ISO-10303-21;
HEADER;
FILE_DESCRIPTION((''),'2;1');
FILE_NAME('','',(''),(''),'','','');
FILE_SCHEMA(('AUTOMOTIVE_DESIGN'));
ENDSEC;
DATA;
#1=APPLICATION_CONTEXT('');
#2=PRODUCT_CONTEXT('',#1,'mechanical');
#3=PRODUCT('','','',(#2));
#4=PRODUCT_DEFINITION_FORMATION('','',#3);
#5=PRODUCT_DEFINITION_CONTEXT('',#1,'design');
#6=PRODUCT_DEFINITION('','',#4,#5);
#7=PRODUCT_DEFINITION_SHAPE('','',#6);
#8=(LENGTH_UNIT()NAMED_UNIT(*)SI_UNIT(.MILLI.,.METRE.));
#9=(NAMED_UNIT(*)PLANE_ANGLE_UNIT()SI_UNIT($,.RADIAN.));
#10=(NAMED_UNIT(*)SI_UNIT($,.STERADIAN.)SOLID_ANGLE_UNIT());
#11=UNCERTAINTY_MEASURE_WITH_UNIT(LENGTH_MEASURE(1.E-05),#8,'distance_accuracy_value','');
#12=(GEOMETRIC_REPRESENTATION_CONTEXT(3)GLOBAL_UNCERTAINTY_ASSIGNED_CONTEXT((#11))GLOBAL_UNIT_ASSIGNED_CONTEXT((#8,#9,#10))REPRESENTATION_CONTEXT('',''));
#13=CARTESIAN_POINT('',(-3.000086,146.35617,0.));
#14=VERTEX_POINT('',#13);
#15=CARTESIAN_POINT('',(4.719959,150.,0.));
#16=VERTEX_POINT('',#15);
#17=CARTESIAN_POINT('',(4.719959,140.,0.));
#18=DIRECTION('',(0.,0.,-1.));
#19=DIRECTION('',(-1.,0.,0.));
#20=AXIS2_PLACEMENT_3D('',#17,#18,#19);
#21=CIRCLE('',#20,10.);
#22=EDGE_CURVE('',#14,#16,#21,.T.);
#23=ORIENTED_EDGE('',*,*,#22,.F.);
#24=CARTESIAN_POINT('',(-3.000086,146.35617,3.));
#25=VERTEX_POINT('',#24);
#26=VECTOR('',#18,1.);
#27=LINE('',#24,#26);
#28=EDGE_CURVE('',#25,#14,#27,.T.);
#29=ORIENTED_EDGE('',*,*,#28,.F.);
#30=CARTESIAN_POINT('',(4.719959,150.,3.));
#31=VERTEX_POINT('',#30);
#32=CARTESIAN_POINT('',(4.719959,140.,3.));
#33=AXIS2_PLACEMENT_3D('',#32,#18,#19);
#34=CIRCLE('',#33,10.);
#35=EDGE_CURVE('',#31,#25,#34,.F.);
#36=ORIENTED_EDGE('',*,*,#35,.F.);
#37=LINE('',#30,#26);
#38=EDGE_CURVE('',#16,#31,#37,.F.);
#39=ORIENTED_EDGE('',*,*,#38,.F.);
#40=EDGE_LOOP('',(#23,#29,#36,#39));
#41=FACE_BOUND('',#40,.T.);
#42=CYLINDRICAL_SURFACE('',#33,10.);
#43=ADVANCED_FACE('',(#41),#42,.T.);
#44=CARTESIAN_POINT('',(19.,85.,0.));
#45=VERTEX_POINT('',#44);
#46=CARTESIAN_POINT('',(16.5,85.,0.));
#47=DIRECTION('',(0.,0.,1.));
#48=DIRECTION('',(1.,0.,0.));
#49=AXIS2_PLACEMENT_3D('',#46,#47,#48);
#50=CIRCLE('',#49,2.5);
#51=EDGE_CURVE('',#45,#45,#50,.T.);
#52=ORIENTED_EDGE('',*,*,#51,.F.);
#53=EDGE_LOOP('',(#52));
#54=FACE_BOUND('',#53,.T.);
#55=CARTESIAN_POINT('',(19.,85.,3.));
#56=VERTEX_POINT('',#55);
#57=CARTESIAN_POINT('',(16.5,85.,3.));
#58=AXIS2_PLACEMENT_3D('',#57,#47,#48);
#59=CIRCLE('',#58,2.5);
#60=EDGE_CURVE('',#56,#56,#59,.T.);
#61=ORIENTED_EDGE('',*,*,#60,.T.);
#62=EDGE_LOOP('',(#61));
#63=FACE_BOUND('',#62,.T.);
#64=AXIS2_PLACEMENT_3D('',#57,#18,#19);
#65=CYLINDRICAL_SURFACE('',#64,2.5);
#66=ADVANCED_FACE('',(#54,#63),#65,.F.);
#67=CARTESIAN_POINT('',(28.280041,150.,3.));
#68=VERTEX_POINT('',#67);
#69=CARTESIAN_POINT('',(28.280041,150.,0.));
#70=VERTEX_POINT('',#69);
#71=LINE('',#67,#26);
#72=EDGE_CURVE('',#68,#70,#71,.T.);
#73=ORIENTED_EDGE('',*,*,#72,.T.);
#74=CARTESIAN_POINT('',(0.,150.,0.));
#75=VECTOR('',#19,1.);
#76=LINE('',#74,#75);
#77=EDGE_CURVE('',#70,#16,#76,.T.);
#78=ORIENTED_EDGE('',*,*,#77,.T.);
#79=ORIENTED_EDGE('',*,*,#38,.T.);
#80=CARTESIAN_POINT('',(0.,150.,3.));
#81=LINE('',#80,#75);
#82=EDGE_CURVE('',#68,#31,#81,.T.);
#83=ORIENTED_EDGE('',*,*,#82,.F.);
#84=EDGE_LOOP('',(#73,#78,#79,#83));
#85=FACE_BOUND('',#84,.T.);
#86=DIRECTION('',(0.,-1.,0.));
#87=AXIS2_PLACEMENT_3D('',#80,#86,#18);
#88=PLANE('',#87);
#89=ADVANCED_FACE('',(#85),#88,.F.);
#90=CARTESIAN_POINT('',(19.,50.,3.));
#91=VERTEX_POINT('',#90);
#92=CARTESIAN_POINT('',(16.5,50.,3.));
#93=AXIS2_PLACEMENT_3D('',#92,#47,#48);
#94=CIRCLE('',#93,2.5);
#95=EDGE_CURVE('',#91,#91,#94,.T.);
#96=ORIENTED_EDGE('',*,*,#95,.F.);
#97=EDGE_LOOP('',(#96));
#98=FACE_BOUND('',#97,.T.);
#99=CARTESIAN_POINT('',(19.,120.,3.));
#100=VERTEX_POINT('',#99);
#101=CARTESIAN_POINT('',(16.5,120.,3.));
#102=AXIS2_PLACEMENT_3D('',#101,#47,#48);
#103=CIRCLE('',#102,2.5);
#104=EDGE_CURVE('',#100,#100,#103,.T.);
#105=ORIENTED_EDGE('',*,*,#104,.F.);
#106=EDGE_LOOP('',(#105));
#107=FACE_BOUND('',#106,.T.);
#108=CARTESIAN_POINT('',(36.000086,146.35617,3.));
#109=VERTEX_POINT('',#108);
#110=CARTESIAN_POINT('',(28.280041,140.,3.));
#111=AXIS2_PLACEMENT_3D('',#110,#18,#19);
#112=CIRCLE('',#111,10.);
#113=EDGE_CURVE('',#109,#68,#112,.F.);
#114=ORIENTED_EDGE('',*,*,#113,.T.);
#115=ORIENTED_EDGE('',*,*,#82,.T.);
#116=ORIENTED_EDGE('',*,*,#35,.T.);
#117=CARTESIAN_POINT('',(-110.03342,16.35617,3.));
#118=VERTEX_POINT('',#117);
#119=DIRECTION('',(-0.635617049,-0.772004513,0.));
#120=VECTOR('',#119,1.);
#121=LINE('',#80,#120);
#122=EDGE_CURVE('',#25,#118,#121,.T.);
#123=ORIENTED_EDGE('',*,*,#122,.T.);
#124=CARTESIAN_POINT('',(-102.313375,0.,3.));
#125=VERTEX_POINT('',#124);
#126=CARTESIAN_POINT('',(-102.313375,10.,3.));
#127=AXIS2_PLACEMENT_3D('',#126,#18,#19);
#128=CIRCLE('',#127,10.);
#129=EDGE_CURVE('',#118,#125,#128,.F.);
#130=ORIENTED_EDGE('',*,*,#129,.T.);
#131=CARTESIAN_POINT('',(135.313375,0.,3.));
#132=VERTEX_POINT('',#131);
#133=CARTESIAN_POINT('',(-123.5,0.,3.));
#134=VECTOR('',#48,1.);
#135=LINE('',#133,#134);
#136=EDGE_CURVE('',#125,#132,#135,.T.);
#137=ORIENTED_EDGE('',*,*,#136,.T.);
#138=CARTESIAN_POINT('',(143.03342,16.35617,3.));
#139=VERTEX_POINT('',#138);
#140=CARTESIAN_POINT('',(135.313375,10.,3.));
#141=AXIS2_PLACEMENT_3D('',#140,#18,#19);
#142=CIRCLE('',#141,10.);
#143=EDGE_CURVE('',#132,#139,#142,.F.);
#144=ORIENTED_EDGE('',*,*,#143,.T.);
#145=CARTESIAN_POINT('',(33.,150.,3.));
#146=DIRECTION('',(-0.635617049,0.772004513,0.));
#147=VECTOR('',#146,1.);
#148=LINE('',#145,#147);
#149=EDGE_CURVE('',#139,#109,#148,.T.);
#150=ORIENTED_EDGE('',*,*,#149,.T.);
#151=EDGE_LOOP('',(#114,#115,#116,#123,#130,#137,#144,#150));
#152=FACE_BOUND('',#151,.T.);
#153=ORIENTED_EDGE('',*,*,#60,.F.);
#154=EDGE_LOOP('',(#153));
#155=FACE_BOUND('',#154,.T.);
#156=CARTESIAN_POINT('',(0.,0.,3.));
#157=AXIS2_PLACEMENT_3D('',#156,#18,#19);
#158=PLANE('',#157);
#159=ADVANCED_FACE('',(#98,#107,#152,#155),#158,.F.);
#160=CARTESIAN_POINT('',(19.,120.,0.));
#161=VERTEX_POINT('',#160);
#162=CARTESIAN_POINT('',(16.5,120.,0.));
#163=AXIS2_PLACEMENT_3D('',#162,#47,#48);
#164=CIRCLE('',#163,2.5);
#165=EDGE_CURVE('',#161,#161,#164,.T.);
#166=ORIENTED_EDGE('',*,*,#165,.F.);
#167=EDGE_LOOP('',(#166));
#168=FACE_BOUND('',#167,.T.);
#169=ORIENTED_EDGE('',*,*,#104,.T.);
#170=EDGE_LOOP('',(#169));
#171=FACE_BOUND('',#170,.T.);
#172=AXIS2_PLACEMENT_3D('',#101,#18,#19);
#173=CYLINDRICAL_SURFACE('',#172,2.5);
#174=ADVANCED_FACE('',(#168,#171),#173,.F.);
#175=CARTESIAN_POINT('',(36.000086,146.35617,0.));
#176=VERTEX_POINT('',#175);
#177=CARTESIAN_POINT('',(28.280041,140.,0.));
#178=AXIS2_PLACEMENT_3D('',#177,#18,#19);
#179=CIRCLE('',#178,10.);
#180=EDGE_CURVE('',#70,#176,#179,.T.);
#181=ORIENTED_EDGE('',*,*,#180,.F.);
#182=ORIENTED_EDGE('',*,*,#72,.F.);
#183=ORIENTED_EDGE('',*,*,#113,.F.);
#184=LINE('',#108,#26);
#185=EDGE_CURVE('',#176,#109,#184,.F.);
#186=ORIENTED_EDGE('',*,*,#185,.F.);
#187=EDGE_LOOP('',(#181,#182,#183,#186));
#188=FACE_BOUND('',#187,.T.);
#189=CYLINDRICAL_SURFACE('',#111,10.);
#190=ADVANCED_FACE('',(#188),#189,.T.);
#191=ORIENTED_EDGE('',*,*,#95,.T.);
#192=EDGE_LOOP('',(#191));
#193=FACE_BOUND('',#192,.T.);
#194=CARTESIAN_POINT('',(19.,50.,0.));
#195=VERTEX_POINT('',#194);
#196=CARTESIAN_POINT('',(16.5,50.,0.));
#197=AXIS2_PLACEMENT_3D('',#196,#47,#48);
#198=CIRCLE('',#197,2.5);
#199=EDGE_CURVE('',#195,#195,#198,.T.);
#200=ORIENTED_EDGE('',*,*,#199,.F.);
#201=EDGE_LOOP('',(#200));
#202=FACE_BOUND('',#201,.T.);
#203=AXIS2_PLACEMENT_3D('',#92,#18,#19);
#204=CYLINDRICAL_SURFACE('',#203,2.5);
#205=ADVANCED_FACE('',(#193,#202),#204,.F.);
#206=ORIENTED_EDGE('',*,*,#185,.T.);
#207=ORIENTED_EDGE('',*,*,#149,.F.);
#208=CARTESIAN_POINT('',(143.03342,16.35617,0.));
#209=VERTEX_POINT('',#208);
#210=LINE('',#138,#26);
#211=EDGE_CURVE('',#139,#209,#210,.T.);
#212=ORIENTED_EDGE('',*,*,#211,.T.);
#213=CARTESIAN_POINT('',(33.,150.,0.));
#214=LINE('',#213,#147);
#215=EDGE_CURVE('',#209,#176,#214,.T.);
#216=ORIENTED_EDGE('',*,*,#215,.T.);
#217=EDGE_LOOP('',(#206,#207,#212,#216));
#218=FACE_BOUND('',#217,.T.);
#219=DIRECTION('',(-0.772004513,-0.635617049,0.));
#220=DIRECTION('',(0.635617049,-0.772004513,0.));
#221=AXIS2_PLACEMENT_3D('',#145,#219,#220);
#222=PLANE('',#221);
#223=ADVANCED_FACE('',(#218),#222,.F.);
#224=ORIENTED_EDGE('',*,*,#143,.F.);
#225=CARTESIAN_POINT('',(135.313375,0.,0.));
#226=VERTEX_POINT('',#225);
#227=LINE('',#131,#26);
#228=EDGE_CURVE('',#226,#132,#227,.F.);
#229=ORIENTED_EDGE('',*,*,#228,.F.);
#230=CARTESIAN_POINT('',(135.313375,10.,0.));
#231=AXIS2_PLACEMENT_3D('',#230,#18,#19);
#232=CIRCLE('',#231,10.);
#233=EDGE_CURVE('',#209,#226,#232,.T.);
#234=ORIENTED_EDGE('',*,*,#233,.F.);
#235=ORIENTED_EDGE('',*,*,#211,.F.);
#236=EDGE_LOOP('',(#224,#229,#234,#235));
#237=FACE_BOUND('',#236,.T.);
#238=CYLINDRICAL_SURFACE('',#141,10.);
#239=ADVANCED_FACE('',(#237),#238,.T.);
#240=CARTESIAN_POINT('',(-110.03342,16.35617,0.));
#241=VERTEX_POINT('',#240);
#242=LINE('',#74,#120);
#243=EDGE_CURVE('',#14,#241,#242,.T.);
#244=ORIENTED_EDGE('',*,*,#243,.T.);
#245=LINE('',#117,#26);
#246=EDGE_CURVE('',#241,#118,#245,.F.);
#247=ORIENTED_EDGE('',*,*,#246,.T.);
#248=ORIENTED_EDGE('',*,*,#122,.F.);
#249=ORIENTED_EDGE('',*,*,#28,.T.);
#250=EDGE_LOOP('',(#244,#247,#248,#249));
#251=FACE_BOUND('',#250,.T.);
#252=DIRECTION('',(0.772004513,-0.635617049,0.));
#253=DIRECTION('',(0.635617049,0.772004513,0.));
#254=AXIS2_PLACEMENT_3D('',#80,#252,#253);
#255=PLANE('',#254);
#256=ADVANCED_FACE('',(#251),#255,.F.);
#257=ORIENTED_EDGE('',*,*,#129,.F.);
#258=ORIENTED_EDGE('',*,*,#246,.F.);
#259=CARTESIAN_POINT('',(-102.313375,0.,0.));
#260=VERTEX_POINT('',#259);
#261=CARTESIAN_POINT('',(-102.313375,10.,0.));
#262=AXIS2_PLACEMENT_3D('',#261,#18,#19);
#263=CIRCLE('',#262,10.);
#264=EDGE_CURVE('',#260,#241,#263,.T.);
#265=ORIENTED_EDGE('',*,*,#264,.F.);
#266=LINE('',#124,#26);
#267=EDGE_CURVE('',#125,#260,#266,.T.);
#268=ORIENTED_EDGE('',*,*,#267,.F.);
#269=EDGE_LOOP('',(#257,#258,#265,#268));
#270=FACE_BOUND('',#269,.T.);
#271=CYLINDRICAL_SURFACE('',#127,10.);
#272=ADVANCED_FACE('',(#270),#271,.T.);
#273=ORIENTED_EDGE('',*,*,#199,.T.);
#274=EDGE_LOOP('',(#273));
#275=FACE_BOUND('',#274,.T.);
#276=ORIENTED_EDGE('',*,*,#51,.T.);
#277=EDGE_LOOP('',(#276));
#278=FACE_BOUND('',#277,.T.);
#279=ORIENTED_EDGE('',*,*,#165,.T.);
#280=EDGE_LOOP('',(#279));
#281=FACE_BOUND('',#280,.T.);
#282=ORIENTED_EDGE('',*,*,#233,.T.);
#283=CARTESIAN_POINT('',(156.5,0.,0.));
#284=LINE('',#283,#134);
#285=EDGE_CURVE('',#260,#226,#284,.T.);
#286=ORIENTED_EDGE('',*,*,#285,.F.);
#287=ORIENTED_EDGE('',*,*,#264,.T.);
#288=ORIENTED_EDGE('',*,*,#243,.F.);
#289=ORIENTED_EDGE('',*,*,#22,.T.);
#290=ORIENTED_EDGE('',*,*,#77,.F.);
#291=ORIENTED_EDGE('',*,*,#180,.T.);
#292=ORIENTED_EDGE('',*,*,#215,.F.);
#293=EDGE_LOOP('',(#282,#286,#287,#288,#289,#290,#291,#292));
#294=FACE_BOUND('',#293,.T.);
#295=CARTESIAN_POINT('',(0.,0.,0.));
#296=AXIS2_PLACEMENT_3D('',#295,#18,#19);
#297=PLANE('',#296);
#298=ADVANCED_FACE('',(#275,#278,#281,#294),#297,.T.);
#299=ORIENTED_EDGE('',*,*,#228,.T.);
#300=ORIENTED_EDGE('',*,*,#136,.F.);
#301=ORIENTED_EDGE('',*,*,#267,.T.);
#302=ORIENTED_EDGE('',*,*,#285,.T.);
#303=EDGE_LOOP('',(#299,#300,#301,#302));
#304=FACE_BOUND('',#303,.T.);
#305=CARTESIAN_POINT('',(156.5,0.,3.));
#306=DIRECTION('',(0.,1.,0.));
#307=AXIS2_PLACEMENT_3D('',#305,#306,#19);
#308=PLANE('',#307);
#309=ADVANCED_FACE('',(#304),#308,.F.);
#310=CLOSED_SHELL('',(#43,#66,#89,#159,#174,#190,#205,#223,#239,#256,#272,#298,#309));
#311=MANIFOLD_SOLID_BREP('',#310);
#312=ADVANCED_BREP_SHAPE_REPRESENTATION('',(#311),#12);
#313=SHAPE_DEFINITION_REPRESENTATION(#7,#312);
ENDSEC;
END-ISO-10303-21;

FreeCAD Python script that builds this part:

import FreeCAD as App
import Part
import Sketcher
from FreeCAD import Vector
Q = App.Units.Quantity


def edges_at(feature, points):
    """Names of the edges that pass closest to the given points."""
    edges = feature.Shape.Edges
    near = lambda p: min(range(len(edges)), key=lambda i: edges[i].distToShape(Part.Vertex(*p))[0])
    return sorted({f"Edge{near(p) + 1}" for p in points})

doc = App.newDocument("Part")
body = doc.addObject("PartDesign::Body", "Body")

sketch1 = body.newObject("Sketcher::SketchObject", "Sketch")
sketch1.AttachmentSupport = (doc.getObject("XY_Plane"), [""])
sketch1.MapMode = "FlatFace"
sketch1.addGeometry(Part.LineSegment(Vector(0, 150, 0), Vector(-123.5, 0, 0)), False)
sketch1.addGeometry(Part.LineSegment(Vector(-123.5, 0, 0), Vector(156.5, 0, 0)), False)
sketch1.addGeometry(Part.LineSegment(Vector(156.5, 0, 0), Vector(33, 150, 0)), False)
sketch1.addGeometry(Part.LineSegment(Vector(33, 150, 0), Vector(0, 150, 0)), False)
sketch1.addGeometry(Part.Circle(Vector(16.5, 50, 0), Vector(0, 0, 1), 2.5), False)
sketch1.addGeometry(Part.Circle(Vector(16.5, 85, 0), Vector(0, 0, 1), 2.5), False)
sketch1.addGeometry(Part.Circle(Vector(16.5, 120, 0), Vector(0, 0, 1), 2.5), False)
sketch1.addConstraint(Sketcher.Constraint("Coincident", 0, 2, 1, 1))
sketch1.addConstraint(Sketcher.Constraint("Coincident", 1, 2, 2, 1))
sketch1.addConstraint(Sketcher.Constraint("Coincident", 2, 2, 3, 1))
sketch1.addConstraint(Sketcher.Constraint("Coincident", 3, 2, 0, 1))
sketch1.addConstraint(Sketcher.Constraint("Horizontal", 1))
sketch1.addConstraint(Sketcher.Constraint("Horizontal", 3))
sketch1.addConstraint(Sketcher.Constraint("Equal", 4, 5))
sketch1.addConstraint(Sketcher.Constraint("Equal", 5, 6))
sketch1.addConstraint(Sketcher.Constraint("PointOnObject", 0, 2, -1))
sketch1.addConstraint(Sketcher.Constraint("PointOnObject", 3, 2, -2))
sketch1.addConstraint(Sketcher.Constraint("Vertical", 4, 3, 5, 3))
sketch1.addConstraint(Sketcher.Constraint("Vertical", 5, 3, 6, 3))
sketch1.addConstraint(Sketcher.Constraint("Equal", 0, 2))
sketch1.addConstraint(Sketcher.Constraint("Diameter", 4, Q("5 mm")))
sketch1.addConstraint(Sketcher.Constraint("DistanceX", 1, 1, 1, 2, Q("280 mm")))
sketch1.addConstraint(Sketcher.Constraint("DistanceX", 3, 2, 3, 1, Q("33 mm")))
sketch1.addConstraint(Sketcher.Constraint("DistanceY", -1, 1, 4, 3, Q("50 mm")))
sketch1.addConstraint(Sketcher.Constraint("DistanceY", -1, 1, 5, 3, Q("85 mm")))
sketch1.addConstraint(Sketcher.Constraint("DistanceY", -1, 1, 6, 3, Q("120 mm")))
sketch1.addConstraint(Sketcher.Constraint("DistanceY", -1, 1, 2, 2, Q("150 mm")))
sketch1.addConstraint(Sketcher.Constraint("DistanceX", 0, 2, 4, 3, Q("140 mm")))
pad1 = body.newObject("PartDesign::Pad", "Pad")
pad1.Profile = sketch1
pad1.Length = 3
doc.recompute()

fillet = body.newObject("PartDesign::Fillet", "Fillet")
fillet.Base = (pad1, edges_at(pad1, [
    (-123.5, 0, 1.5),
    (0, 150, 1.5),
    (33, 150, 1.5),
    (156.5, 0, 1.5),
]))
fillet.Radius = 10

doc.recompute()
